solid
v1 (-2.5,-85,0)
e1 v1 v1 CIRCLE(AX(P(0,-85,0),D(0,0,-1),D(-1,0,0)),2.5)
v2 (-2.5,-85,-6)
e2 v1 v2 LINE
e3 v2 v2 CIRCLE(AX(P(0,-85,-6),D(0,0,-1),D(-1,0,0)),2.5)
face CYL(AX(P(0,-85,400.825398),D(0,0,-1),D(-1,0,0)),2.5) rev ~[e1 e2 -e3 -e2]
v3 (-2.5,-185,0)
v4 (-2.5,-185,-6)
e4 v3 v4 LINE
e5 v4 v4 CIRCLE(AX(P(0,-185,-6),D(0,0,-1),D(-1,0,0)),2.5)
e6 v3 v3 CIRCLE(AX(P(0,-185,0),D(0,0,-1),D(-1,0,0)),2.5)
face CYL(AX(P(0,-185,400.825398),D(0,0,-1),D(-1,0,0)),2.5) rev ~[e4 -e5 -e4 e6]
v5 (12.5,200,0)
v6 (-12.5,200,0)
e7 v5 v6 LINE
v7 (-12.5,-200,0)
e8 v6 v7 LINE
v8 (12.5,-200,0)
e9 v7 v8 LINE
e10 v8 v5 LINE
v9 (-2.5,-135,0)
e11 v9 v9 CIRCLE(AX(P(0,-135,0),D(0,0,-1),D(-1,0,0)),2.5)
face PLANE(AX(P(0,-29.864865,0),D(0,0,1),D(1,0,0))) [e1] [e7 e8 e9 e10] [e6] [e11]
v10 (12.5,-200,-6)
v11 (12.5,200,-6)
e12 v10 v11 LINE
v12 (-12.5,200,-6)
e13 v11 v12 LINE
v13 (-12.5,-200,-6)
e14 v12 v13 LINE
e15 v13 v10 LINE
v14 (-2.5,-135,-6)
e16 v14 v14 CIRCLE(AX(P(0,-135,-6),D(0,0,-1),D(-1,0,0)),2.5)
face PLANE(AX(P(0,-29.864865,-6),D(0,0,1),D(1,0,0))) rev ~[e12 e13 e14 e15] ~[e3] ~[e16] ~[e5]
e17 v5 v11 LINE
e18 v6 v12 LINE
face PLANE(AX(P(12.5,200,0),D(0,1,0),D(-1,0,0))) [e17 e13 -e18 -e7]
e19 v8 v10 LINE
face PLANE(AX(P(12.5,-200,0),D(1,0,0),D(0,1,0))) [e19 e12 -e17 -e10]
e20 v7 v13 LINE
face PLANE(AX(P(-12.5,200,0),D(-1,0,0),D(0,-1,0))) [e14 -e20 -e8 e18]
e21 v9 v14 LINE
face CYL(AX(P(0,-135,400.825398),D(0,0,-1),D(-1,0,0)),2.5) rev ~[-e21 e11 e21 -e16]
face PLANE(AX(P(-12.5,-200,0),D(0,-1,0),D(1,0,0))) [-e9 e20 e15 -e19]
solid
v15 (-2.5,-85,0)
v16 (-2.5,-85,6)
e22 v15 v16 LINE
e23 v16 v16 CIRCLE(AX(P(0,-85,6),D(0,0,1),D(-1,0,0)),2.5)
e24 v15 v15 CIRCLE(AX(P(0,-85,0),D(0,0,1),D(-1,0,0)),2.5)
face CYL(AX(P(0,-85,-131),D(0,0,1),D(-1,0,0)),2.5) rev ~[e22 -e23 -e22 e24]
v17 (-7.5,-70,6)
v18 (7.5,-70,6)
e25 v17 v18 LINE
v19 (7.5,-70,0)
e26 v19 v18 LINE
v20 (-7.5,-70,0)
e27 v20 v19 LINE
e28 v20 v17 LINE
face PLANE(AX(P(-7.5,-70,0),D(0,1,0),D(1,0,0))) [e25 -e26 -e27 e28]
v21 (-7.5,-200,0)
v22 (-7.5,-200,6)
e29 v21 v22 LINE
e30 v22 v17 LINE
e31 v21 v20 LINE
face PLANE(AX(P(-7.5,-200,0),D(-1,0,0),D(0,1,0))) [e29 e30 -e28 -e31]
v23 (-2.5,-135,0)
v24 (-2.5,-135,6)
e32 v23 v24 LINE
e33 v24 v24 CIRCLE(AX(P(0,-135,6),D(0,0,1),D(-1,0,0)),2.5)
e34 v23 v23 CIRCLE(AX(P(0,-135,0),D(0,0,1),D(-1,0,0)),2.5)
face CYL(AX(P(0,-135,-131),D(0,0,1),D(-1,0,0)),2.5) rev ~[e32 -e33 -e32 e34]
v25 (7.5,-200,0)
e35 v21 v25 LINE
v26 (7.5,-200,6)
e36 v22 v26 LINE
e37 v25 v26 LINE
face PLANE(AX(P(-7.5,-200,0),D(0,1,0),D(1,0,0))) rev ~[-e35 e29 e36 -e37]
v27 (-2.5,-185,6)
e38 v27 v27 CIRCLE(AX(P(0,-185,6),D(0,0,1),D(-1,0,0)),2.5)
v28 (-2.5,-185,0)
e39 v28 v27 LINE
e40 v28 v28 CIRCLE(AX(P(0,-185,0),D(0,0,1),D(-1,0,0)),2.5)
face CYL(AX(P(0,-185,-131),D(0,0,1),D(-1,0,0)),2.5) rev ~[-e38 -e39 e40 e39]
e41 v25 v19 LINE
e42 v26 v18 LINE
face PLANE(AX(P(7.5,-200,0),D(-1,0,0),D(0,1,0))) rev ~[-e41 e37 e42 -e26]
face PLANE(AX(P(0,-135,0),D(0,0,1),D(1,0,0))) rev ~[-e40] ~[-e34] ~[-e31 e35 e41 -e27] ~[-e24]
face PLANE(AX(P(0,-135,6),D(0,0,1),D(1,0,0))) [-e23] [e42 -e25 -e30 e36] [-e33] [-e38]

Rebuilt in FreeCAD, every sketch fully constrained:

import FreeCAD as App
import Part
import Sketcher
from FreeCAD import Vector
Q = App.Units.Quantity

doc = App.newDocument("Part")
body = doc.addObject("PartDesign::Body", "Body")

# Sketch on XY plane
sketch1 = body.newObject("Sketcher::SketchObject", "Sketch")
sketch1.AttachmentSupport = (doc.getObject("XY_Plane"), [""])
sketch1.MapMode = "FlatFace"
sketch1.addGeometry([
    Part.LineSegment(Vector(-12.5, 200, 0), Vector(-12.5, -200, 0)),
    Part.LineSegment(Vector(-12.5, -200, 0), Vector(12.5, -200, 0)),
    Part.LineSegment(Vector(12.5, -200, 0), Vector(12.5, 200, 0)),
    Part.LineSegment(Vector(12.5, 200, 0), Vector(-12.5, 200, 0)),
], False)
sketch1.addConstraint([
    Sketcher.Constraint("Coincident", 0, 2, 1, 1),
    Sketcher.Constraint("Coincident", 1, 2, 2, 1),
    Sketcher.Constraint("Coincident", 2, 2, 3, 1),
    Sketcher.Constraint("Coincident", 3, 2, 0, 1),
    Sketcher.Constraint("Vertical", 0),
    Sketcher.Constraint("Horizontal", 1),
    Sketcher.Constraint("Vertical", 2),
    Sketcher.Constraint("Horizontal", 3),
    Sketcher.Constraint("Symmetric", 0, 2, 2, 2, -1, 1),
    Sketcher.Constraint("DistanceX", 1, 1, 1, 2, Q("25 mm")),
    Sketcher.Constraint("DistanceY", 0, 2, 0, 1, Q("400 mm")),
])
pad1 = body.newObject("PartDesign::Pad", "Pad")
pad1.Profile = sketch1
pad1.Length = 6
pad1.Reversed = True

# Sketch on XY plane
sketch2 = body.newObject("Sketcher::SketchObject", "Sketch001")
sketch2.AttachmentSupport = (doc.getObject("XY_Plane"), [""])
sketch2.MapMode = "FlatFace"
sketch2.addGeometry([
    Part.Circle(Vector(0, -135, 0), Vector(0, 0, 1), 2.5),
    Part.Circle(Vector(0, -185, 0), Vector(0, 0, 1), 2.5),
    Part.Circle(Vector(0, -85, 0), Vector(0, 0, 1), 2.5),
], False)
sketch2.addConstraint([
    Sketcher.Constraint("Equal", 0, 1),
    Sketcher.Constraint("Equal", 1, 2),
    Sketcher.Constraint("PointOnObject", 0, 3, -2),
    Sketcher.Constraint("PointOnObject", 1, 3, -2),
    Sketcher.Constraint("PointOnObject", 2, 3, -2),
    Sketcher.Constraint("Diameter", 0, Q("5 mm")),
    Sketcher.Constraint("DistanceY", 0, 3, -1, 1, Q("135 mm")),
    Sketcher.Constraint("DistanceY", 1, 3, -1, 1, Q("185 mm")),
    Sketcher.Constraint("DistanceY", 2, 3, -1, 1, Q("85 mm")),
])
doc.recompute()
hole = body.newObject("PartDesign::Hole", "Hole")
hole.Profile = sketch2
hole.ThreadType = "None"
hole.Diameter = 5
hole.DepthType = "ThroughAll"
body2 = doc.addObject("PartDesign::Body", "Body001")

# Sketch on XY plane
sketch3 = body2.newObject("Sketcher::SketchObject", "Sketch002")
sketch3.AttachmentSupport = (doc.getObject("XY_Plane001"), [""])
sketch3.MapMode = "FlatFace"
sketch3.addGeometry([
    Part.LineSegment(Vector(-7.5, -70, 0), Vector(-7.5, -200, 0)),
    Part.LineSegment(Vector(-7.5, -200, 0), Vector(7.5, -200, 0)),
    Part.LineSegment(Vector(7.5, -200, 0), Vector(7.5, -70, 0)),
    Part.LineSegment(Vector(7.5, -70, 0), Vector(-7.5, -70, 0)),
], False)
sketch3.addConstraint([
    Sketcher.Constraint("Coincident", 0, 2, 1, 1),
    Sketcher.Constraint("Coincident", 1, 2, 2, 1),
    Sketcher.Constraint("Coincident", 2, 2, 3, 1),
    Sketcher.Constraint("Coincident", 3, 2, 0, 1),
    Sketcher.Constraint("Vertical", 0),
    Sketcher.Constraint("Horizontal", 1),
    Sketcher.Constraint("Vertical", 2),
    Sketcher.Constraint("Horizontal", 3),
    Sketcher.Constraint("DistanceX", 1, 1, 1, 2, Q("15 mm")),
    Sketcher.Constraint("DistanceY", 0, 2, 0, 1, Q("130 mm")),
    Sketcher.Constraint("DistanceY", 0, 2, -1, 1, Q("200 mm")),
    Sketcher.Constraint("DistanceX", 0, 2, -1, 1, Q("7.5 mm")),
])
pad2 = body2.newObject("PartDesign::Pad", "Pad001")
pad2.Profile = sketch3
pad2.Length = 6

# Sketch on XY plane
sketch4 = body2.newObject("Sketcher::SketchObject", "Sketch003")
sketch4.AttachmentSupport = (doc.getObject("XY_Plane001"), [""])
sketch4.MapMode = "FlatFace"
sketch4.addGeometry([
    Part.Circle(Vector(0, -185, 0), Vector(0, 0, 1), 2.5),
    Part.Circle(Vector(0, -135, 0), Vector(0, 0, 1), 2.5),
    Part.Circle(Vector(0, -85, 0), Vector(0, 0, 1), 2.5),
], False)
sketch4.addConstraint([
    Sketcher.Constraint("Equal", 0, 1),
    Sketcher.Constraint("Equal", 1, 2),
    Sketcher.Constraint("PointOnObject", 0, 3, -2),
    Sketcher.Constraint("PointOnObject", 1, 3, -2),
    Sketcher.Constraint("PointOnObject", 2, 3, -2),
    Sketcher.Constraint("Diameter", 0, Q("5 mm")),
    Sketcher.Constraint("DistanceY", 0, 3, -1, 1, Q("185 mm")),
    Sketcher.Constraint("DistanceY", 1, 3, -1, 1, Q("135 mm")),
    Sketcher.Constraint("DistanceY", 2, 3, -1, 1, Q("85 mm")),
])
doc.recompute()
hole2 = body2.newObject("PartDesign::Hole", "Hole001")
hole2.Profile = sketch4
hole2.ThreadType = "None"
hole2.Diameter = 5
hole2.DepthType = "ThroughAll"
hole2.Reversed = True

doc.recompute()
